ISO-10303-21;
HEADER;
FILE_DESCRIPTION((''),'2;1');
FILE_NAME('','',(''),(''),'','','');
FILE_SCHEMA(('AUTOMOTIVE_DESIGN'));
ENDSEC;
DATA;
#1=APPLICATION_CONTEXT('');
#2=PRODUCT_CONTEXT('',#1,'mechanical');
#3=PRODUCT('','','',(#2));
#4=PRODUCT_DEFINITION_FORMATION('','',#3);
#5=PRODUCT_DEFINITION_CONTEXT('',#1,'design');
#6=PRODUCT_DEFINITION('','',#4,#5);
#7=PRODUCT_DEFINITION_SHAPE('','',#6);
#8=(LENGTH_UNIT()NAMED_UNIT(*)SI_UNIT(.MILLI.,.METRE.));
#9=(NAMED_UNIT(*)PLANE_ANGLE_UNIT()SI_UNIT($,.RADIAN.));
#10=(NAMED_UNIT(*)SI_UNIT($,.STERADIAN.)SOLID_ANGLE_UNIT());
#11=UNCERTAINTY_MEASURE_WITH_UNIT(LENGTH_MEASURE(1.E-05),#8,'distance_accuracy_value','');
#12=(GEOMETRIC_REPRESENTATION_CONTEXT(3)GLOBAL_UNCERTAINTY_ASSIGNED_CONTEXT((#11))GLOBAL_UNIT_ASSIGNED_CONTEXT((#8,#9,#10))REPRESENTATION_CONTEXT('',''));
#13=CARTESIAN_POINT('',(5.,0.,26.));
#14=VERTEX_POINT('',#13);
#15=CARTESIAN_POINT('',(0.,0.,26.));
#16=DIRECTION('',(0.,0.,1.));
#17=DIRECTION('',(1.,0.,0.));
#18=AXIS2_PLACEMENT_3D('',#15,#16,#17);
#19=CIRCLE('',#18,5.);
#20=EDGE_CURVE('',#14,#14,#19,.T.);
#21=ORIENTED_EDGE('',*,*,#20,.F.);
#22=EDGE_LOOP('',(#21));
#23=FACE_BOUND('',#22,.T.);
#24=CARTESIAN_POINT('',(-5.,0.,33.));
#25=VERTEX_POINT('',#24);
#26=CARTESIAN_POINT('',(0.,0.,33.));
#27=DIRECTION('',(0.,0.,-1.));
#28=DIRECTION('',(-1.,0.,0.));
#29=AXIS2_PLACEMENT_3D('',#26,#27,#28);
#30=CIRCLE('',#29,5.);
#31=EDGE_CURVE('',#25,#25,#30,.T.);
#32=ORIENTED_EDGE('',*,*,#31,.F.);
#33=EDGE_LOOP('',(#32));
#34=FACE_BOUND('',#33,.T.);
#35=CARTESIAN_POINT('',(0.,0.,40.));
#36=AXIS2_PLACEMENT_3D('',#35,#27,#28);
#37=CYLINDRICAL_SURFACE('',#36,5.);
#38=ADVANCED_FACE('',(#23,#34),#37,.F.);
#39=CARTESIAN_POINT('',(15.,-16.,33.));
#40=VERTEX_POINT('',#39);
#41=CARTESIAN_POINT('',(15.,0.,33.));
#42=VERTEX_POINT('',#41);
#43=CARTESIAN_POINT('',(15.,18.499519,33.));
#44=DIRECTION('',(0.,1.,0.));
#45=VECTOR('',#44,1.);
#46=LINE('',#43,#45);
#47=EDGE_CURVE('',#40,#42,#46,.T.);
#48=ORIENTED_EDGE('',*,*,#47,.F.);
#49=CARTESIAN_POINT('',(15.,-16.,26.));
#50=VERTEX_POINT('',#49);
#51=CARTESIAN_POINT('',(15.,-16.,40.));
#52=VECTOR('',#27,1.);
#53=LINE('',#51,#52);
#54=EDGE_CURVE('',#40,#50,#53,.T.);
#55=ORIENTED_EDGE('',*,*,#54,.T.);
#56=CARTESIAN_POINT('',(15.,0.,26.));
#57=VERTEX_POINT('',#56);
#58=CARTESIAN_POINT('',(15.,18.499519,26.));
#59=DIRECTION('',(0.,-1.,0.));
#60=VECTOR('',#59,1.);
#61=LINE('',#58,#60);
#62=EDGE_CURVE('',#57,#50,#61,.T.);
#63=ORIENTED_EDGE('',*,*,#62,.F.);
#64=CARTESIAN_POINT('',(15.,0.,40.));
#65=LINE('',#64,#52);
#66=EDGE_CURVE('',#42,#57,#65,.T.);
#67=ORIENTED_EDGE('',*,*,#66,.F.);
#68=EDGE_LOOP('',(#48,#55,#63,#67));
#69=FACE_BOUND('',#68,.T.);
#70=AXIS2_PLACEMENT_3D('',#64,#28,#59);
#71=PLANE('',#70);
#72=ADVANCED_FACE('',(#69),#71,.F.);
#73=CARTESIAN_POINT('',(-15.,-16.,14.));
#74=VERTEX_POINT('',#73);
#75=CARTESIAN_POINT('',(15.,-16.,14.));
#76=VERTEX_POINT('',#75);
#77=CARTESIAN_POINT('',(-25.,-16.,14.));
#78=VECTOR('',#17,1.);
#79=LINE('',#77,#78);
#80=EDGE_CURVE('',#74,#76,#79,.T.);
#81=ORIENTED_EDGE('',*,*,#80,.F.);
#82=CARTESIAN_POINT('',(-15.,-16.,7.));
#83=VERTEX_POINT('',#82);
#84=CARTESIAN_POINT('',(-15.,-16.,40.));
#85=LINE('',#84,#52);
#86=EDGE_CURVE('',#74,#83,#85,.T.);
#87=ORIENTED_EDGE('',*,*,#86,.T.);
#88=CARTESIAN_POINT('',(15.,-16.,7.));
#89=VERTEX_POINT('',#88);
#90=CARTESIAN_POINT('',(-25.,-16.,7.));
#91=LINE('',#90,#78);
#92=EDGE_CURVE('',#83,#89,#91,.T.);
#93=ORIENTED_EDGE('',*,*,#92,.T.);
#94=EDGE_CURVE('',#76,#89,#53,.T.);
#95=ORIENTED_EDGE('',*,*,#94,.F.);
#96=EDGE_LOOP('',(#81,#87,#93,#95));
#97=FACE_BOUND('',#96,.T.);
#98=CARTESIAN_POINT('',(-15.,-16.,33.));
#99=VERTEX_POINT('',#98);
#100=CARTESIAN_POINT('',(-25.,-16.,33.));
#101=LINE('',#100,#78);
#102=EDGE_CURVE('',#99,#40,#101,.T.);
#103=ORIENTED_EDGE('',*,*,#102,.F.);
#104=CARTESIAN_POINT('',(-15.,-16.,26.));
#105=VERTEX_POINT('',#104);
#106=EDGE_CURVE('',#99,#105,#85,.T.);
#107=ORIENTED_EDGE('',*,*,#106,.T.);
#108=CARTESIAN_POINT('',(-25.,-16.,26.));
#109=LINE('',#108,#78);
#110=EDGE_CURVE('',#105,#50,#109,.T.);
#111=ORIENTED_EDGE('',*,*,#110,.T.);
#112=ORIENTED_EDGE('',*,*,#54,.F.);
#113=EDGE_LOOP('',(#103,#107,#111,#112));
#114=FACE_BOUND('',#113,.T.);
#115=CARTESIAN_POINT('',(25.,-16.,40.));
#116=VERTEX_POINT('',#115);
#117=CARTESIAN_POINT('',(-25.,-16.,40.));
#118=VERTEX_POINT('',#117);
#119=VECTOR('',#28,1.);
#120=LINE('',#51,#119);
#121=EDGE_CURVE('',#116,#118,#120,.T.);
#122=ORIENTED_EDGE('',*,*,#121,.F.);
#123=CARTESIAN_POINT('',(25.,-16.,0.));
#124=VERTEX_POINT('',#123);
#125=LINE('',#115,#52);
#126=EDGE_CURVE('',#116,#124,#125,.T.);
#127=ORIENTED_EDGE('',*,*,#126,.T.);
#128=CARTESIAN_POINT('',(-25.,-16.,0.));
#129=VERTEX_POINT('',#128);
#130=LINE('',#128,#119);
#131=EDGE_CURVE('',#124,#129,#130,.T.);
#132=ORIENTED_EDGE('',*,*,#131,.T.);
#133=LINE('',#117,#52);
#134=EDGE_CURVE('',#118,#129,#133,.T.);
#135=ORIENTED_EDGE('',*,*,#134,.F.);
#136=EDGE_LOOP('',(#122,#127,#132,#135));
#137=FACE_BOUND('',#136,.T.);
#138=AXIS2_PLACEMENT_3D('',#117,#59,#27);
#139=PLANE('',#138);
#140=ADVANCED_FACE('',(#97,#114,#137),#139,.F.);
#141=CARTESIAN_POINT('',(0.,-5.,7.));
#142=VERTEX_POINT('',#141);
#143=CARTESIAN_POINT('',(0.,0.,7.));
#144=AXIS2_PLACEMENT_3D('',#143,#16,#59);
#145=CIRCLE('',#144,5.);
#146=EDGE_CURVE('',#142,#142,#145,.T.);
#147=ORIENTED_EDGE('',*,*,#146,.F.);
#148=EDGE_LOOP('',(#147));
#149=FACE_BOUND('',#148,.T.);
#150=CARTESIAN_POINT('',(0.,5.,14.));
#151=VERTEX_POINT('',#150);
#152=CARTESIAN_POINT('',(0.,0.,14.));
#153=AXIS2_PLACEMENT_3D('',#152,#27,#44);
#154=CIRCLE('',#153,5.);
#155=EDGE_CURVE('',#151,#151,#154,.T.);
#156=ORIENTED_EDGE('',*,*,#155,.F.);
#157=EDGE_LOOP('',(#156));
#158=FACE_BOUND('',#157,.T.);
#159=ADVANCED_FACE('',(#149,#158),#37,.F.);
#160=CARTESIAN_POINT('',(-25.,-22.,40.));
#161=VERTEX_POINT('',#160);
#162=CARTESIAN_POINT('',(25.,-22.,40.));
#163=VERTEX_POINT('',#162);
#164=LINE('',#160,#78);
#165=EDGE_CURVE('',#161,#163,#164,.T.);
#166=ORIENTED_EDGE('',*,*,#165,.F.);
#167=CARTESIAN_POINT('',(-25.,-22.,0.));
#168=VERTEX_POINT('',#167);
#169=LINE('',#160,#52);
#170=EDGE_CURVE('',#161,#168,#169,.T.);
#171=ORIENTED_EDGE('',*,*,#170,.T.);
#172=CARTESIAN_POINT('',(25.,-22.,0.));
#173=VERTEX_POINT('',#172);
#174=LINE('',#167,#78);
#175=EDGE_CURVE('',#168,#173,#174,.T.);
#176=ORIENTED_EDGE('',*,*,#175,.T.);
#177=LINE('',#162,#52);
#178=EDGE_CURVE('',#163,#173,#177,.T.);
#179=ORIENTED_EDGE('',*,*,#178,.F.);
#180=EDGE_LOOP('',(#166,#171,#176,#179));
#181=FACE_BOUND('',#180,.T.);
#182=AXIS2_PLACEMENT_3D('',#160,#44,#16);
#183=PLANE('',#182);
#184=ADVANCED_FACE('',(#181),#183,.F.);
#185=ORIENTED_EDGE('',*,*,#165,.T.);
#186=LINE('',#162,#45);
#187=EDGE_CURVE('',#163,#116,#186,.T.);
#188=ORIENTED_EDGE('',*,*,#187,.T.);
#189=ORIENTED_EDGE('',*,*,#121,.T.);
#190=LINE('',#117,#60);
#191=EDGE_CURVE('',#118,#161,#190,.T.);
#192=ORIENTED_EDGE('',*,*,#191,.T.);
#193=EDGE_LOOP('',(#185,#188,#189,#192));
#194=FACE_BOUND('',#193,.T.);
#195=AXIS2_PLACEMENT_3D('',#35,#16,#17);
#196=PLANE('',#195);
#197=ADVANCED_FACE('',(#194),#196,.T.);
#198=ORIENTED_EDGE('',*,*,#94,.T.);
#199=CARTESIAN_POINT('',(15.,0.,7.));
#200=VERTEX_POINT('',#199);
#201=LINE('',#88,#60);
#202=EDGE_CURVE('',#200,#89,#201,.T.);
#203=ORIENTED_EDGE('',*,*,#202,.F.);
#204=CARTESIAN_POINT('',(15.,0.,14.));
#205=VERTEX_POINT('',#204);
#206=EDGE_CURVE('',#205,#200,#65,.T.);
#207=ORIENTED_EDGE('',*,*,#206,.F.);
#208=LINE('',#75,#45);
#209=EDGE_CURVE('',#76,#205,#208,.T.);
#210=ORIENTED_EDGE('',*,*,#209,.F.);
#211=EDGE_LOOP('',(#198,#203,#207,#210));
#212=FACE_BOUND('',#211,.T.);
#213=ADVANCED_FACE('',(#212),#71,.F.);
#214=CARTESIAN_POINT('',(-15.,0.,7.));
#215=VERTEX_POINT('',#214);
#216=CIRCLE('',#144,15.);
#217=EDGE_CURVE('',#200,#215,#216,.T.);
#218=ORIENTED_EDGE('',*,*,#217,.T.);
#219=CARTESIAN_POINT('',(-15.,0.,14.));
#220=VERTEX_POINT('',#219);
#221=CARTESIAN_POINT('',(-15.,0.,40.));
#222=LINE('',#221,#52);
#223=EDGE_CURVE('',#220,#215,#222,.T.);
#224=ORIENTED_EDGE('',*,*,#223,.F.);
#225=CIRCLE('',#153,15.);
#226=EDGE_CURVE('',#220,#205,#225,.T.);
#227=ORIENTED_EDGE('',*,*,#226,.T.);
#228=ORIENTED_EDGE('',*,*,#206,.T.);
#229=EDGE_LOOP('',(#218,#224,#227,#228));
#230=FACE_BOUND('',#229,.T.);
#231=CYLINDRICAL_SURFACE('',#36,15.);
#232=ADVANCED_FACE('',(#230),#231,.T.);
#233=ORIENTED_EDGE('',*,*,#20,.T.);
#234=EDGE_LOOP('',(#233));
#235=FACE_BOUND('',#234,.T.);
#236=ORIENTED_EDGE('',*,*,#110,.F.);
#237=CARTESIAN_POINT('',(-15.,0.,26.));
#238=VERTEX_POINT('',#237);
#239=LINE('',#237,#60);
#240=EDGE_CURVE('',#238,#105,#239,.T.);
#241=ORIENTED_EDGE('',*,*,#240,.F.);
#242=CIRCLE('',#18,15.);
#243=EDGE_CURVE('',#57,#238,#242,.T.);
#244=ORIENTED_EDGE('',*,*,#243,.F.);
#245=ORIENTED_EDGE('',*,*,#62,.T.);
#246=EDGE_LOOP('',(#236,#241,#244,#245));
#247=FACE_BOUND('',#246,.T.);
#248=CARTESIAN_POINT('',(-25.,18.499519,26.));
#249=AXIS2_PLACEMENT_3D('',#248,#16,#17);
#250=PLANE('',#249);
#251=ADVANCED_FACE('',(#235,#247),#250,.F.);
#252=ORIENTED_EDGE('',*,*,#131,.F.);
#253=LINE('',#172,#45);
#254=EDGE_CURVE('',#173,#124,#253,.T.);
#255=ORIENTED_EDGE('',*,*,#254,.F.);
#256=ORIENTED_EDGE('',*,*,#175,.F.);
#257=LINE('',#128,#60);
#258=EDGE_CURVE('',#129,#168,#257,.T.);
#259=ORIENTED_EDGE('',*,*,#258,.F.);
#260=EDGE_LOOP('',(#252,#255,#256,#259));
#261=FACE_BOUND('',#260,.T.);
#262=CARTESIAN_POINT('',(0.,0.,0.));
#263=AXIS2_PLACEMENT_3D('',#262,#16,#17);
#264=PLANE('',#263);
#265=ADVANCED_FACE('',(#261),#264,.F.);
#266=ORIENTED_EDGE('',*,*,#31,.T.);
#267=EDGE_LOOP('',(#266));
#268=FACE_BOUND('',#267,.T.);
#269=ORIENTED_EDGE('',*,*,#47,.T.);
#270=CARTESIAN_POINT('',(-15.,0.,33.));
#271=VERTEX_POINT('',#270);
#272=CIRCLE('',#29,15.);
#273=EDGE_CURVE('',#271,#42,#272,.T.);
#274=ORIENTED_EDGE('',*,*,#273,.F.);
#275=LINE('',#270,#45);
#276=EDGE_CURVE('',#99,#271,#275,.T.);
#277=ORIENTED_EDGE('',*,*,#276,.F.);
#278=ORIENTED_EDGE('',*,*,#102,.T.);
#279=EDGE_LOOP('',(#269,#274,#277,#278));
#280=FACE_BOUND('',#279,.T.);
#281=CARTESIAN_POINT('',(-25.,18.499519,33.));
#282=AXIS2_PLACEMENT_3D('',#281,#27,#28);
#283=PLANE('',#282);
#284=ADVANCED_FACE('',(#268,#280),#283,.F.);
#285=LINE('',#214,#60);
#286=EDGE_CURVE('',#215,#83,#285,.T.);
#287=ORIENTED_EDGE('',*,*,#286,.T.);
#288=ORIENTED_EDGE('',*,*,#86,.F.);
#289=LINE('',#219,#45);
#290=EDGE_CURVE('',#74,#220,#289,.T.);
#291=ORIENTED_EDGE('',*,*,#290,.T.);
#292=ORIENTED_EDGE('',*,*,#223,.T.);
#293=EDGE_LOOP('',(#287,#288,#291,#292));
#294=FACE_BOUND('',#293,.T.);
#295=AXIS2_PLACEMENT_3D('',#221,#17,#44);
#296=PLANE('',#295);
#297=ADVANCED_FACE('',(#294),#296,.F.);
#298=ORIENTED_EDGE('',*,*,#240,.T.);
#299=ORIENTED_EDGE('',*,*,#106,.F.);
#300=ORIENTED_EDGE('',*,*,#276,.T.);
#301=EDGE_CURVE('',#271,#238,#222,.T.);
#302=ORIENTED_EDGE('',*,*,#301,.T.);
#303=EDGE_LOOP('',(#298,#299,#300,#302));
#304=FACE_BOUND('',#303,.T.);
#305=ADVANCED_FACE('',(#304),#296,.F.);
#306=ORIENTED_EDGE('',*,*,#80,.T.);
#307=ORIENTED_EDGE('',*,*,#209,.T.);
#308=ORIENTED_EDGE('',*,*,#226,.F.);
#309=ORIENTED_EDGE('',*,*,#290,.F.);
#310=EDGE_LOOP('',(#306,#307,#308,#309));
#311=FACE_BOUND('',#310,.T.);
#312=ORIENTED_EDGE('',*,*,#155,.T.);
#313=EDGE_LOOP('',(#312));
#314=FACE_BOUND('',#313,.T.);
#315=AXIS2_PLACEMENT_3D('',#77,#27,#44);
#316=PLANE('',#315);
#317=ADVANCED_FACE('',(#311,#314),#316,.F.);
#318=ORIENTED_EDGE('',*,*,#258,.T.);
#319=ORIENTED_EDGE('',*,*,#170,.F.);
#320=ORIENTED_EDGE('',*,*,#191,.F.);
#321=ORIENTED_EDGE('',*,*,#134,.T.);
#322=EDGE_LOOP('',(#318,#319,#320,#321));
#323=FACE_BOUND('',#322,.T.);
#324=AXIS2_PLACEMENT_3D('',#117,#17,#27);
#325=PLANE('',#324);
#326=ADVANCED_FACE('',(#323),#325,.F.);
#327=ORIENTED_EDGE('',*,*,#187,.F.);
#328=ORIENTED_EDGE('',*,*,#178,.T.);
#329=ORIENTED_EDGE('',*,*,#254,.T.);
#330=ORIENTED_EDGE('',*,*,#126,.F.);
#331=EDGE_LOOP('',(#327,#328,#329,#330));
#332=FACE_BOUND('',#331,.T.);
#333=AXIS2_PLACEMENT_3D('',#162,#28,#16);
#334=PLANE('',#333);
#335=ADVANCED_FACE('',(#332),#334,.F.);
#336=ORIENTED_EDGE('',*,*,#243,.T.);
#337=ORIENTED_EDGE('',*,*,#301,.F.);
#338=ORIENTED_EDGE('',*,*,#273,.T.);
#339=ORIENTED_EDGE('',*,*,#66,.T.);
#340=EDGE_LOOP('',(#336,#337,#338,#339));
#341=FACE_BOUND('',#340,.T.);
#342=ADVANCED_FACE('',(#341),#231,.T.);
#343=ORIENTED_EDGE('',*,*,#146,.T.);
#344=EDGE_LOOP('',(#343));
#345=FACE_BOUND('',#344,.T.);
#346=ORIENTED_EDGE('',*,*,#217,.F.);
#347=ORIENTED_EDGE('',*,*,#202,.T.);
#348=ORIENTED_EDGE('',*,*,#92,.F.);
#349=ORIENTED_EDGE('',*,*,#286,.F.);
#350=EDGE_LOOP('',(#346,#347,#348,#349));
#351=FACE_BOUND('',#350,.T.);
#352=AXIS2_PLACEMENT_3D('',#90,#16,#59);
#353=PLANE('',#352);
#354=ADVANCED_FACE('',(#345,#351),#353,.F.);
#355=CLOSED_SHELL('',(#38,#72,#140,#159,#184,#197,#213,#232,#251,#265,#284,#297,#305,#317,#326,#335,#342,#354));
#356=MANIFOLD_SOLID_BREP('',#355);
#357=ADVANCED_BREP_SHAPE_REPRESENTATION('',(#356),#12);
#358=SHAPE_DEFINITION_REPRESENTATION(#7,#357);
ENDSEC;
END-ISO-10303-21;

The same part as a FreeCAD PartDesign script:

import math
import FreeCAD as App
import Part
import Sketcher


def add_polygon(sketch, points):
    """Adds a closed chain of lines whose ends are joined by coincident constraints."""
    first, n = sketch.GeometryCount, len(points)
    for a, b in zip(points, points[1:] + points[:1]):
        sketch.addGeometry(Part.LineSegment(App.Vector(*a, 0), App.Vector(*b, 0)), False)
    for i in range(n):
        sketch.addConstraint(Sketcher.Constraint("Coincident", first + i, 2, first + (i + 1) % n, 1))

doc = App.newDocument("Part")
params = doc.addObject("Spreadsheet::Sheet", "Params")
for row, (alias, value) in enumerate([
    ("sketch1_diameter", "10 mm"),
    ("sketch1_radius", "15 mm"),
    ("sketch1_width", "10 mm"),
    ("sketch1_height", "16 mm"),
    ("sketch1_height2", "6 mm"),
    ("pad1_length", "40 mm"),
    ("sketch2_height", "7 mm"),
    ("sketch2_height2", "12 mm"),
    ("pocket1_length", "40 mm"),
], start=1):
    params.set(f"A{row}", alias)
    params.set(f"B{row}", "=" + value)
    params.setAlias(f"B{row}", alias)

body = doc.addObject("PartDesign::Body", "Body")

sketch1 = body.newObject("Sketcher::SketchObject", "Sketch")
sketch1.AttachmentSupport = (doc.getObject("XY_Plane"), [""])
sketch1.MapMode = "FlatFace"
sketch1.addGeometry([
    Part.LineSegment(App.Vector(25, -16, 0), App.Vector(15, -16, 0)),
    Part.LineSegment(App.Vector(15, -16, 0), App.Vector(15, 0, 0)),
    Part.ArcOfCircle(Part.Circle(App.Vector(0, 0, 0), App.Vector(0, 0, 1), 15), math.radians(0), math.radians(180)),
    Part.LineSegment(App.Vector(-15, 0, 0), App.Vector(-15, -16, 0)),
    Part.LineSegment(App.Vector(-15, -16, 0), App.Vector(-25, -16, 0)),
    Part.LineSegment(App.Vector(-25, -16, 0), App.Vector(-25, -22, 0)),
    Part.LineSegment(App.Vector(-25, -22, 0), App.Vector(25, -22, 0)),
    Part.LineSegment(App.Vector(25, -22, 0), App.Vector(25, -16, 0)),
    Part.Circle(App.Vector(0, 0, 0), App.Vector(0, 0, 1), 5),
], False)
sketch1.addConstraint([
    Sketcher.Constraint("Coincident", 0, 2, 1, 1),
    Sketcher.Constraint("Tangent", 1, 2, 2, 1),
    Sketcher.Constraint("Tangent", 2, 2, 3, 1),
    Sketcher.Constraint("Coincident", 3, 2, 4, 1),
    Sketcher.Constraint("Coincident", 4, 2, 5, 1),
    Sketcher.Constraint("Coincident", 5, 2, 6, 1),
    Sketcher.Constraint("Coincident", 6, 2, 7, 1),
    Sketcher.Constraint("Coincident", 7, 2, 0, 1),
    Sketcher.Constraint("Horizontal", 0),
    Sketcher.Constraint("Vertical", 1),
    Sketcher.Constraint("Vertical", 3),
    Sketcher.Constraint("Horizontal", 4),
    Sketcher.Constraint("Vertical", 5),
    Sketcher.Constraint("Horizontal", 6),
    Sketcher.Constraint("Vertical", 7),
    Sketcher.Constraint("Coincident", 2, 3, -1, 1),
    Sketcher.Constraint("Coincident", 8, 3, -1, 1),
    Sketcher.Constraint("Symmetric", 4, 2, 7, 2, -2),
    Sketcher.Constraint("Diameter", 8, 10.0),
    Sketcher.Constraint("Radius", 2, 15.0),
    Sketcher.Constraint("DistanceX", 0, 2, 0, 1, 10.0),
    Sketcher.Constraint("DistanceY", 1, 1, 1, 2, 16.0),
    Sketcher.Constraint("DistanceY", 5, 2, 5, 1, 6.0),
])
sketch1.setExpression("Constraints[18]", "Params.sketch1_diameter")
sketch1.setExpression("Constraints[19]", "Params.sketch1_radius")
sketch1.setExpression("Constraints[20]", "Params.sketch1_width")
sketch1.setExpression("Constraints[21]", "Params.sketch1_height")
sketch1.setExpression("Constraints[22]", "Params.sketch1_height2")
pad1 = body.newObject("PartDesign::Pad", "Pad")
pad1.Profile = sketch1
pad1.setExpression("Length", "Params.pad1_length")

sketch2 = body.newObject("Sketcher::SketchObject", "Sketch001")
sketch2.AttachmentSupport = (doc.getObject("YZ_Plane"), [""])
sketch2.MapMode = "FlatFace"
sketch2.AttachmentOffset = App.Placement(App.Vector(0, 0, 15), App.Rotation())
add_polygon(sketch2, [(18, 40), (-16, 40), (-16, 33), (18, 33)])
add_polygon(sketch2, [(18, 7), (-16, 7), (-16, 0), (18, 0)])
add_polygon(sketch2, [(18, 26), (-16, 26), (-16, 14), (18, 14)])
sketch2.addConstraint([
    Sketcher.Constraint("Horizontal", 0),
    Sketcher.Constraint("Vertical", 1),
    Sketcher.Constraint("Horizontal", 2),
    Sketcher.Constraint("Vertical", 3),
    Sketcher.Constraint("Horizontal", 4),
    Sketcher.Constraint("Vertical", 5),
    Sketcher.Constraint("Horizontal", 6),
    Sketcher.Constraint("Vertical", 7),
    Sketcher.Constraint("Horizontal", 8),
    Sketcher.Constraint("Vertical", 9),
    Sketcher.Constraint("Horizontal", 10),
    Sketcher.Constraint("Vertical", 11),
    Sketcher.Constraint("PointOnObject", 5, 2, -1),
    Sketcher.Constraint("Vertical", 1, 2, 4, 2),
    Sketcher.Constraint("Vertical", 3, 2, 6, 2),
    Sketcher.Constraint("Vertical", 5, 2, 8, 2),
    Sketcher.Constraint("Vertical", 7, 2, 10, 2),
    Sketcher.Constraint("Equal", 3, 5),
    Sketcher.Constraint("DistanceY", 1, 2, 1, 1, 7.0),
    Sketcher.Constraint("DistanceY", 9, 2, 9, 1, 12.0),
    Sketcher.Constraint("DistanceX", 0, 2, -1, 1, 16.0),
    Sketcher.Constraint("DistanceY", -1, 1, 0, 2, 40.0),
    Sketcher.Constraint("DistanceY", -1, 1, 8, 2, 26.0),
    Sketcher.Constraint("DistanceX", 0, 2, 0, 1, 34.499519),
])
sketch2.setExpression("Constraints[30]", "Params.sketch2_height")
sketch2.setExpression("Constraints[31]", "Params.sketch2_height2")
pocket1 = body.newObject("PartDesign::Pocket", "Pocket")
pocket1.Profile = sketch2
pocket1.setExpression("Length", "Params.pocket1_length")

doc.recompute()
